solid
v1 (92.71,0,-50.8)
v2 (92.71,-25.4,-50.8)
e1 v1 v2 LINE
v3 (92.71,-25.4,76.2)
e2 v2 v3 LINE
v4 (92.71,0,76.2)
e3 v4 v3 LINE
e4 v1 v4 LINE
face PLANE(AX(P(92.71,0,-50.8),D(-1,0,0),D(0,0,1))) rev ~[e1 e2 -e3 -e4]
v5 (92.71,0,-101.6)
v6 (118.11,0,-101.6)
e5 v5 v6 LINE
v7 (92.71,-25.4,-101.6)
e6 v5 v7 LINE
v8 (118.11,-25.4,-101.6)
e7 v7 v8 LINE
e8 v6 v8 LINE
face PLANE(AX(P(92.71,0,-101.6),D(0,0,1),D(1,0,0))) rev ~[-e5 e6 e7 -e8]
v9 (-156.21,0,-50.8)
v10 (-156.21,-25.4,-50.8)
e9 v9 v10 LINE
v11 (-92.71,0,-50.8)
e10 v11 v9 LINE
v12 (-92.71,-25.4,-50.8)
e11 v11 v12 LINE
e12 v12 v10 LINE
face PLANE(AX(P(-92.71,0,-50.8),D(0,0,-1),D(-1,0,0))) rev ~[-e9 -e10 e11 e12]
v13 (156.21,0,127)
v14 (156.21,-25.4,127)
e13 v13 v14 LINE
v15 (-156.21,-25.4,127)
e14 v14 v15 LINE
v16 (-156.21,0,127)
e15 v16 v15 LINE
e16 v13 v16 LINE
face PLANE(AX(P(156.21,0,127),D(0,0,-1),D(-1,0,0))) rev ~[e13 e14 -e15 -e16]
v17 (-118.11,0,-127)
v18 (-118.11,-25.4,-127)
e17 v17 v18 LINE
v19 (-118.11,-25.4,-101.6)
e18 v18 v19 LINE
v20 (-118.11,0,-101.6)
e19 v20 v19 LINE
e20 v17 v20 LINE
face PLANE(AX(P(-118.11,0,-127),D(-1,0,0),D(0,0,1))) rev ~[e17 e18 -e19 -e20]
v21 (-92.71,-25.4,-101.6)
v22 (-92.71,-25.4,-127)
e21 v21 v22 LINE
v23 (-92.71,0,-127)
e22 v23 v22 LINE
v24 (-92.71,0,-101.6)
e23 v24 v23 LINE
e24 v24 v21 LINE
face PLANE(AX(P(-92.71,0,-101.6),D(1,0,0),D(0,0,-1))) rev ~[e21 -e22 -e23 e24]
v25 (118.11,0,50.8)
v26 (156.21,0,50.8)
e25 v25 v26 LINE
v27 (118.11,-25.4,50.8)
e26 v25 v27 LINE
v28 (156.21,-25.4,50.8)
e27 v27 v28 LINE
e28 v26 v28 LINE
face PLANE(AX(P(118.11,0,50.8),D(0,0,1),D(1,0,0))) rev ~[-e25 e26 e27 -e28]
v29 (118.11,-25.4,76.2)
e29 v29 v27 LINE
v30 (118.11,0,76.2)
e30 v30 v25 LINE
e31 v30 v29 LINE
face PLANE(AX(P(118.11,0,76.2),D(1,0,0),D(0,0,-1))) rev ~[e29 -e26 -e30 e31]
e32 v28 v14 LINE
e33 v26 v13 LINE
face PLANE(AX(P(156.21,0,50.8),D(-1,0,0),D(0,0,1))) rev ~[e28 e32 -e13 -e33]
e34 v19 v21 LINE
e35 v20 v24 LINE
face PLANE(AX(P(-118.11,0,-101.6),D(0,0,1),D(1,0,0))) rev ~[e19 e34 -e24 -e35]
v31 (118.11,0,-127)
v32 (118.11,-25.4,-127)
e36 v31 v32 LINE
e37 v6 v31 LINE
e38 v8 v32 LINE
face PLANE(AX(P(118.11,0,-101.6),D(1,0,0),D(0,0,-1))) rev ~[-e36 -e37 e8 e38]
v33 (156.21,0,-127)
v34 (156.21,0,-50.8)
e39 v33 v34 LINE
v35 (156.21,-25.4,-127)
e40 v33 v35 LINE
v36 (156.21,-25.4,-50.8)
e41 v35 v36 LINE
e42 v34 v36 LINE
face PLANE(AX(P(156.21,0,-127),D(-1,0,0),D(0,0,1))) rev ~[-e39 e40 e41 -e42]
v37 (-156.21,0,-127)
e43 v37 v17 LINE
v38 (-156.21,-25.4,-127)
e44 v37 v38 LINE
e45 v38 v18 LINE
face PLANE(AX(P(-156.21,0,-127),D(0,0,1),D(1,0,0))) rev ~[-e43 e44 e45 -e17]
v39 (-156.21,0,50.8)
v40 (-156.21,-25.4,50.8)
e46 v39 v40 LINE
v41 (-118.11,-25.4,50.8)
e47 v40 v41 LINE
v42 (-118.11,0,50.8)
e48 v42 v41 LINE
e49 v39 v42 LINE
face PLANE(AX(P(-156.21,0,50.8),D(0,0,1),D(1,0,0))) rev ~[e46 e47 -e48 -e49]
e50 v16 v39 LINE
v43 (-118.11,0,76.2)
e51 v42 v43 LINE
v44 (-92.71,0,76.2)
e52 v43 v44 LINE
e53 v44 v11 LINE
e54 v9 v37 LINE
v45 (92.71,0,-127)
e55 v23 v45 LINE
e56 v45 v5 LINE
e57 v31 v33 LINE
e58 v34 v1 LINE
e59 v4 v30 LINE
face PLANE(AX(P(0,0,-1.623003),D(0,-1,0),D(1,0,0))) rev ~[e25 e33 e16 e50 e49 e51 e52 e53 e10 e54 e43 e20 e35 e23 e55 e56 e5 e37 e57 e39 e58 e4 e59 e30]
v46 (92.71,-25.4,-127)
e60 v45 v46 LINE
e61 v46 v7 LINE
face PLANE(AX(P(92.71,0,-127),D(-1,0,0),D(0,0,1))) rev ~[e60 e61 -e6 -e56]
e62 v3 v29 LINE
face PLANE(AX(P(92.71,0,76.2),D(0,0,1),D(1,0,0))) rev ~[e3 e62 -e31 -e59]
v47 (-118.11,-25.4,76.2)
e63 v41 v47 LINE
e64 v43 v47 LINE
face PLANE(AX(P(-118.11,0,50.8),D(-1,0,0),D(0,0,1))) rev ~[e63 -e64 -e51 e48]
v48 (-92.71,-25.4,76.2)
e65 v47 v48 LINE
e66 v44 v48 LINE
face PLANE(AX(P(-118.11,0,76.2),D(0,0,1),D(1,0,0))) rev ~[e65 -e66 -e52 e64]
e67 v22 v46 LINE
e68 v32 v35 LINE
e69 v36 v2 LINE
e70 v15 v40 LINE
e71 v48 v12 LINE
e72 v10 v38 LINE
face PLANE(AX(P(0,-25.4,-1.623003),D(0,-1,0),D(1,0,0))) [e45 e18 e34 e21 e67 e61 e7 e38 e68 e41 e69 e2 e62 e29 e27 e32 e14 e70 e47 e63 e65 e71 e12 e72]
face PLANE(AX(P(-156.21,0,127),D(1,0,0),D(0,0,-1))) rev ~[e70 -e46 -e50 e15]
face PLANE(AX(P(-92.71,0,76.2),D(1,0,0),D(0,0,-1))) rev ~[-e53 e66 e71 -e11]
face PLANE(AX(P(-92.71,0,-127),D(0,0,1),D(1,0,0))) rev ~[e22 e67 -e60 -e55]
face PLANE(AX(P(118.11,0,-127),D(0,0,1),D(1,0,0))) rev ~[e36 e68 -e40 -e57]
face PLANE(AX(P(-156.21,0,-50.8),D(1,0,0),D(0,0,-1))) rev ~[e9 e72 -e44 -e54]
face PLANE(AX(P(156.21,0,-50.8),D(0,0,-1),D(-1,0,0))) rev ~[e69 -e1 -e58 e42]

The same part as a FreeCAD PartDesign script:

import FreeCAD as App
import Part
import Sketcher
Q = App.Units.Quantity

doc = App.newDocument("Part")
body = doc.addObject("PartDesign::Body", "Body")

# Sketch on XZ plane
sketch1 = body.newObject("Sketcher::SketchObject", "Sketch")
sketch1.AttachmentSupport = (doc.getObject("XZ_Plane"), [""])
sketch1.MapMode = "FlatFace"
sketch1.addGeometry(Part.LineSegment(App.Vector(156, 127, 0), App.Vector(-156, 127, 0)), False)
sketch1.addGeometry(Part.LineSegment(App.Vector(-156, 127, 0), App.Vector(-156, 51, 0)), False)
sketch1.addGeometry(Part.LineSegment(App.Vector(-156, 51, 0), App.Vector(-118, 51, 0)), False)
sketch1.addGeometry(Part.LineSegment(App.Vector(-118, 51, 0), App.Vector(-118, 76, 0)), False)
sketch1.addGeometry(Part.LineSegment(App.Vector(-118, 76, 0), App.Vector(-93, 76, 0)), False)
sketch1.addGeometry(Part.LineSegment(App.Vector(-93, 76, 0), App.Vector(-93, -51, 0)), False)
sketch1.addGeometry(Part.LineSegment(App.Vector(-93, -51, 0), App.Vector(-156, -51, 0)), False)
sketch1.addGeometry(Part.LineSegment(App.Vector(-156, -51, 0), App.Vector(-156, -127, 0)), False)
sketch1.addGeometry(Part.LineSegment(App.Vector(-156, -127, 0), App.Vector(-118, -127, 0)), False)
sketch1.addGeometry(Part.LineSegment(App.Vector(-118, -127, 0), App.Vector(-118, -102, 0)), False)
sketch1.addGeometry(Part.LineSegment(App.Vector(-118, -102, 0), App.Vector(-93, -102, 0)), False)
sketch1.addGeometry(Part.LineSegment(App.Vector(-93, -102, 0), App.Vector(-93, -127, 0)), False)
sketch1.addGeometry(Part.LineSegment(App.Vector(-93, -127, 0), App.Vector(93, -127, 0)), False)
sketch1.addGeometry(Part.LineSegment(App.Vector(93, -127, 0), App.Vector(93, -102, 0)), False)
sketch1.addGeometry(Part.LineSegment(App.Vector(93, -102, 0), App.Vector(118, -102, 0)), False)
sketch1.addGeometry(Part.LineSegment(App.Vector(118, -102, 0), App.Vector(118, -127, 0)), False)
sketch1.addGeometry(Part.LineSegment(App.Vector(118, -127, 0), App.Vector(156, -127, 0)), False)
sketch1.addGeometry(Part.LineSegment(App.Vector(156, -127, 0), App.Vector(156, -51, 0)), False)
sketch1.addGeometry(Part.LineSegment(App.Vector(156, -51, 0), App.Vector(93, -51, 0)), False)
sketch1.addGeometry(Part.LineSegment(App.Vector(93, -51, 0), App.Vector(93, 76, 0)), False)
sketch1.addGeometry(Part.LineSegment(App.Vector(93, 76, 0), App.Vector(118, 76, 0)), False)
sketch1.addGeometry(Part.LineSegment(App.Vector(118, 76, 0), App.Vector(118, 51, 0)), False)
sketch1.addGeometry(Part.LineSegment(App.Vector(118, 51, 0), App.Vector(156, 51, 0)), False)
sketch1.addGeometry(Part.LineSegment(App.Vector(156, 51, 0), App.Vector(156, 127, 0)), False)
sketch1.addConstraint(Sketcher.Constraint("Coincident", 0, 2, 1, 1))
sketch1.addConstraint(Sketcher.Constraint("Coincident", 1, 2, 2, 1))
sketch1.addConstraint(Sketcher.Constraint("Coincident", 2, 2, 3, 1))
sketch1.addConstraint(Sketcher.Constraint("Coincident", 3, 2, 4, 1))
sketch1.addConstraint(Sketcher.Constraint("Coincident", 4, 2, 5, 1))
sketch1.addConstraint(Sketcher.Constraint("Coincident", 5, 2, 6, 1))
sketch1.addConstraint(Sketcher.Constraint("Coincident", 6, 2, 7, 1))
sketch1.addConstraint(Sketcher.Constraint("Coincident", 7, 2, 8, 1))
sketch1.addConstraint(Sketcher.Constraint("Coincident", 8, 2, 9, 1))
sketch1.addConstraint(Sketcher.Constraint("Coincident", 9, 2, 10, 1))
sketch1.addConstraint(Sketcher.Constraint("Coincident", 10, 2, 11, 1))
sketch1.addConstraint(Sketcher.Constraint("Coincident", 11, 2, 12, 1))
sketch1.addConstraint(Sketcher.Constraint("Coincident", 12, 2, 13, 1))
sketch1.addConstraint(Sketcher.Constraint("Coincident", 13, 2, 14, 1))
sketch1.addConstraint(Sketcher.Constraint("Coincident", 14, 2, 15, 1))
sketch1.addConstraint(Sketcher.Constraint("Coincident", 15, 2, 16, 1))
sketch1.addConstraint(Sketcher.Constraint("Coincident", 16, 2, 17, 1))
sketch1.addConstraint(Sketcher.Constraint("Coincident", 17, 2, 18, 1))
sketch1.addConstraint(Sketcher.Constraint("Coincident", 18, 2, 19, 1))
sketch1.addConstraint(Sketcher.Constraint("Coincident", 19, 2, 20, 1))
sketch1.addConstraint(Sketcher.Constraint("Coincident", 20, 2, 21, 1))
sketch1.addConstraint(Sketcher.Constraint("Coincident", 21, 2, 22, 1))
sketch1.addConstraint(Sketcher.Constraint("Coincident", 22, 2, 23, 1))
sketch1.addConstraint(Sketcher.Constraint("Coincident", 23, 2, 0, 1))
sketch1.addConstraint(Sketcher.Constraint("Horizontal", 0))
sketch1.addConstraint(Sketcher.Constraint("Vertical", 1))
sketch1.addConstraint(Sketcher.Constraint("Horizontal", 2))
sketch1.addConstraint(Sketcher.Constraint("Vertical", 3))
sketch1.addConstraint(Sketcher.Constraint("Horizontal", 4))
sketch1.addConstraint(Sketcher.Constraint("Vertical", 5))
sketch1.addConstraint(Sketcher.Constraint("Horizontal", 6))
sketch1.addConstraint(Sketcher.Constraint("Vertical", 7))
sketch1.addConstraint(Sketcher.Constraint("Horizontal", 8))
sketch1.addConstraint(Sketcher.Constraint("Vertical", 9))
sketch1.addConstraint(Sketcher.Constraint("Horizontal", 10))
sketch1.addConstraint(Sketcher.Constraint("Vertical", 11))
sketch1.addConstraint(Sketcher.Constraint("Horizontal", 12))
sketch1.addConstraint(Sketcher.Constraint("Vertical", 13))
sketch1.addConstraint(Sketcher.Constraint("Horizontal", 14))
sketch1.addConstraint(Sketcher.Constraint("Vertical", 15))
sketch1.addConstraint(Sketcher.Constraint("Horizontal", 16))
sketch1.addConstraint(Sketcher.Constraint("Vertical", 17))
sketch1.addConstraint(Sketcher.Constraint("Horizontal", 18))
sketch1.addConstraint(Sketcher.Constraint("Vertical", 19))
sketch1.addConstraint(Sketcher.Constraint("Horizontal", 20))
sketch1.addConstraint(Sketcher.Constraint("Vertical", 21))
sketch1.addConstraint(Sketcher.Constraint("Horizontal", 22))
sketch1.addConstraint(Sketcher.Constraint("Vertical", 23))
sketch1.addConstraint(Sketcher.Constraint("Symmetric", 0, 2, 16, 2, -1, 1))
sketch1.addConstraint(Sketcher.Constraint("Symmetric", 6, 2, 22, 2, -1, 1))
sketch1.addConstraint(Sketcher.Constraint("Symmetric", 10, 2, 13, 2, -2))
sketch1.addConstraint(Sketcher.Constraint("Symmetric", 8, 2, 15, 2, -2))
sketch1.addConstraint(Sketcher.Constraint("Symmetric", 6, 2, 17, 2, -2))
sketch1.addConstraint(Sketcher.Constraint("Symmetric", 4, 2, 19, 2, -2))
sketch1.addConstraint(Sketcher.Constraint("Symmetric", 2, 2, 21, 2, -2))
sketch1.addConstraint(Sketcher.Constraint("Horizontal", 8, 2, 11, 2))
sketch1.addConstraint(Sketcher.Constraint("Vertical", 3, 2, 8, 2))
sketch1.addConstraint(Sketcher.Constraint("Vertical", 5, 2, 10, 2))
sketch1.addConstraint(Sketcher.Constraint("Equal", 20, 3))
sketch1.addConstraint(Sketcher.Constraint("Equal", 3, 9))
sketch1.addConstraint(Sketcher.Constraint("DistanceX", 4, 1, 4, 2, Q("1 in")))
sketch1.addConstraint(Sketcher.Constraint("DistanceY", 1, 2, 1, 1, Q("3 in")))
sketch1.addConstraint(Sketcher.Constraint("DistanceY", 5, 2, 5, 1, Q("5 in")))
sketch1.addConstraint(Sketcher.Constraint("DistanceX", 0, 2, 0, 1, Q("12.3 in")))
sketch1.addConstraint(Sketcher.Constraint("DistanceX", 2, 1, 2, 2, Q("1.5 in")))
pad1 = body.newObject("PartDesign::Pad", "Pad")
pad1.Profile = sketch1
pad1.Length = Q("1 in")

doc.recompute()
